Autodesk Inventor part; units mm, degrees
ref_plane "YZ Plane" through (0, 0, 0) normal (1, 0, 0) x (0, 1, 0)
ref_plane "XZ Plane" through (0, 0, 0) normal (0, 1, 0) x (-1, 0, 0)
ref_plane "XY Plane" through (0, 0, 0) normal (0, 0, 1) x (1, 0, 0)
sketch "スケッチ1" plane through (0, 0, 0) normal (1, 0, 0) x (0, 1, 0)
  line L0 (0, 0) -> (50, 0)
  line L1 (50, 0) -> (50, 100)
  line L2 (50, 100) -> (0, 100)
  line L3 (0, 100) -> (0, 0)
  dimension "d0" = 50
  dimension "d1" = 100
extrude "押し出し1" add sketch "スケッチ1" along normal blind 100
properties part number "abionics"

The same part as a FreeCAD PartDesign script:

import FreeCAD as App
import Part
import Sketcher
from FreeCAD import Vector
Q = App.Units.Quantity


def add_polygon(sketch, points):
    """Adds a closed chain of lines whose ends are joined by coincident constraints."""
    first, n = sketch.GeometryCount, len(points)
    for a, b in zip(points, points[1:] + points[:1]):
        sketch.addGeometry(Part.LineSegment(App.Vector(*a, 0), App.Vector(*b, 0)), False)
    for i in range(n):
        sketch.addConstraint(Sketcher.Constraint("Coincident", first + i, 2, first + (i + 1) % n, 1))

doc = App.newDocument("Part")
params = doc.addObject("Spreadsheet::Sheet", "Params")
for row, (alias, value) in enumerate([
    ("sketch1_height", "3.937 in"),
    ("pad1_length", "3.9370079 in"),
], start=1):
    params.set(f"A{row}", alias)
    params.set(f"B{row}", "=" + value)
    params.setAlias(f"B{row}", alias)

body = doc.addObject("PartDesign::Body", "Body")

# Sketch on YZ plane
sketch1 = doc.addObject("Sketcher::SketchObject", "Sketch")
body.addObject(sketch1)
sketch1.AttachmentSupport = (doc.YZ_Plane, [""])
sketch1.MapMode = "FlatFace"
add_polygon(sketch1, [(0, 100), (0, 0), (50, 0), (50, 100)])  # lines 0-3
sketch1.addConstraint([
    Sketcher.Constraint("Vertical", 0),
    Sketcher.Constraint("Horizontal", 1),
    Sketcher.Constraint("Vertical", 2),
    Sketcher.Constraint("Horizontal", 3),
    Sketcher.Constraint("Coincident", 0, 2, -1, 1),
    Sketcher.Constraint("DistanceY", 0, 2, 0, 1, Q("3.937 in")),
    Sketcher.Constraint("DistanceX", 1, 1, 1, 2, Q("1.9685 in")),
])
sketch1.setExpression("Constraints[9]", "Params.sketch1_height")
pad1 = doc.addObject("PartDesign::Pad", "Pad")
body.addObject(pad1)
pad1.Profile = sketch1
pad1.setExpression("Length", "Params.pad1_length")

doc.recompute()
